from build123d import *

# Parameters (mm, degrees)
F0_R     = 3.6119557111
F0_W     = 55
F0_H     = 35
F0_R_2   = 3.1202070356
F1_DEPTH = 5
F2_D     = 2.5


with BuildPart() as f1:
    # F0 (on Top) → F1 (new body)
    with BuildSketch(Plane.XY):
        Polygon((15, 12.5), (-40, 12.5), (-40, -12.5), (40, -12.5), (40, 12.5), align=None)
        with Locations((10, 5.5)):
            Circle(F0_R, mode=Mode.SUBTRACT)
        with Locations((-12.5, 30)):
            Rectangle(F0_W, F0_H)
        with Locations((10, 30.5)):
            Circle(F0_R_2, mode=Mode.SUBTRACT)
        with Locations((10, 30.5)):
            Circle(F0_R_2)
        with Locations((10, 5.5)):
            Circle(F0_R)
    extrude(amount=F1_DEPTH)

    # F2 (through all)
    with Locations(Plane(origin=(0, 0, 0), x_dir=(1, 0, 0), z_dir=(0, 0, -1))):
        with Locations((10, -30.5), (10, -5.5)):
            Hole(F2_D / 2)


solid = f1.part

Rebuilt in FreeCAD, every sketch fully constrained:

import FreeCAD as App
import Part
import Sketcher

V = App.Vector

doc = App.newDocument("Part")
body = doc.addObject("PartDesign::Body", "Body")

# Sketch on XY plane
sketch1 = body.newObject("Sketcher::SketchObject", "Sketch")
sketch1.AttachmentSupport = (doc.getObject("XY_Plane"), [""])
sketch1.MapMode = "FlatFace"
sketch1.addGeometry(Part.LineSegment(V(-40, -12.5, 0), V(40, -12.5, 0)), False)
sketch1.addGeometry(Part.LineSegment(V(40, -12.5, 0), V(40, 12.5, 0)), False)
sketch1.addGeometry(Part.LineSegment(V(40, 12.5, 0), V(15, 12.5, 0)), False)
sketch1.addGeometry(Part.LineSegment(V(15, 12.5, 0), V(15, 47.5, 0)), False)
sketch1.addGeometry(Part.LineSegment(V(15, 47.5, 0), V(-40, 47.5, 0)), False)
sketch1.addGeometry(Part.LineSegment(V(-40, 47.5, 0), V(-40, -12.5, 0)), False)
sketch1.addConstraint(Sketcher.Constraint("Coincident", 0, 2, 1, 1))
sketch1.addConstraint(Sketcher.Constraint("Coincident", 1, 2, 2, 1))
sketch1.addConstraint(Sketcher.Constraint("Coincident", 2, 2, 3, 1))
sketch1.addConstraint(Sketcher.Constraint("Coincident", 3, 2, 4, 1))
sketch1.addConstraint(Sketcher.Constraint("Coincident", 4, 2, 5, 1))
sketch1.addConstraint(Sketcher.Constraint("Coincident", 5, 2, 0, 1))
sketch1.addConstraint(Sketcher.Constraint("Horizontal", 0))
sketch1.addConstraint(Sketcher.Constraint("Vertical", 1))
sketch1.addConstraint(Sketcher.Constraint("Horizontal", 2))
sketch1.addConstraint(Sketcher.Constraint("Vertical", 3))
sketch1.addConstraint(Sketcher.Constraint("Horizontal", 4))
sketch1.addConstraint(Sketcher.Constraint("Vertical", 5))
sketch1.addConstraint(Sketcher.Constraint("Symmetric", 1, 2, 5, 2, -1, 1))
sketch1.addConstraint(Sketcher.Constraint("Equal", 2, 1))
sketch1.addConstraint(Sketcher.Constraint("DistanceX", 0, 1, 0, 2, 80.0))
sketch1.addConstraint(Sketcher.Constraint("DistanceX", 2, 2, 2, 1, 25.0))
sketch1.addConstraint(Sketcher.Constraint("DistanceY", 3, 1, 3, 2, 35.0))
pad1 = body.newObject("PartDesign::Pad", "Pad")
pad1.Profile = sketch1
pad1.Length = 5

# Sketch on XY plane
sketch2 = body.newObject("Sketcher::SketchObject", "Sketch001")
sketch2.AttachmentSupport = (doc.getObject("XY_Plane"), [""])
sketch2.MapMode = "FlatFace"
sketch2.addGeometry(Part.Circle(V(10, 30.5, 0), V(0, 0, 1), 1.25), False)
sketch2.addGeometry(Part.Circle(V(10, 5.5, 0), V(0, 0, 1), 1.25), False)
sketch2.addConstraint(Sketcher.Constraint("Equal", 0, 1))
sketch2.addConstraint(Sketcher.Constraint("Vertical", 0, 3, 1, 3))
sketch2.addConstraint(Sketcher.Constraint("Diameter", 0, 2.5))
sketch2.addConstraint(Sketcher.Constraint("DistanceX", -1, 1, 0, 3, 10.0))
sketch2.addConstraint(Sketcher.Constraint("DistanceY", 1, 3, 0, 3, 25.0))
sketch2.addConstraint(Sketcher.Constraint("DistanceY", -1, 1, 0, 3, 30.5))
doc.recompute()
hole = body.newObject("PartDesign::Hole", "Hole")
hole.Profile = sketch2
hole.ThreadType = "None"
hole.Diameter = 2.5
hole.DepthType = "ThroughAll"
hole.Reversed = True

doc.recompute()
